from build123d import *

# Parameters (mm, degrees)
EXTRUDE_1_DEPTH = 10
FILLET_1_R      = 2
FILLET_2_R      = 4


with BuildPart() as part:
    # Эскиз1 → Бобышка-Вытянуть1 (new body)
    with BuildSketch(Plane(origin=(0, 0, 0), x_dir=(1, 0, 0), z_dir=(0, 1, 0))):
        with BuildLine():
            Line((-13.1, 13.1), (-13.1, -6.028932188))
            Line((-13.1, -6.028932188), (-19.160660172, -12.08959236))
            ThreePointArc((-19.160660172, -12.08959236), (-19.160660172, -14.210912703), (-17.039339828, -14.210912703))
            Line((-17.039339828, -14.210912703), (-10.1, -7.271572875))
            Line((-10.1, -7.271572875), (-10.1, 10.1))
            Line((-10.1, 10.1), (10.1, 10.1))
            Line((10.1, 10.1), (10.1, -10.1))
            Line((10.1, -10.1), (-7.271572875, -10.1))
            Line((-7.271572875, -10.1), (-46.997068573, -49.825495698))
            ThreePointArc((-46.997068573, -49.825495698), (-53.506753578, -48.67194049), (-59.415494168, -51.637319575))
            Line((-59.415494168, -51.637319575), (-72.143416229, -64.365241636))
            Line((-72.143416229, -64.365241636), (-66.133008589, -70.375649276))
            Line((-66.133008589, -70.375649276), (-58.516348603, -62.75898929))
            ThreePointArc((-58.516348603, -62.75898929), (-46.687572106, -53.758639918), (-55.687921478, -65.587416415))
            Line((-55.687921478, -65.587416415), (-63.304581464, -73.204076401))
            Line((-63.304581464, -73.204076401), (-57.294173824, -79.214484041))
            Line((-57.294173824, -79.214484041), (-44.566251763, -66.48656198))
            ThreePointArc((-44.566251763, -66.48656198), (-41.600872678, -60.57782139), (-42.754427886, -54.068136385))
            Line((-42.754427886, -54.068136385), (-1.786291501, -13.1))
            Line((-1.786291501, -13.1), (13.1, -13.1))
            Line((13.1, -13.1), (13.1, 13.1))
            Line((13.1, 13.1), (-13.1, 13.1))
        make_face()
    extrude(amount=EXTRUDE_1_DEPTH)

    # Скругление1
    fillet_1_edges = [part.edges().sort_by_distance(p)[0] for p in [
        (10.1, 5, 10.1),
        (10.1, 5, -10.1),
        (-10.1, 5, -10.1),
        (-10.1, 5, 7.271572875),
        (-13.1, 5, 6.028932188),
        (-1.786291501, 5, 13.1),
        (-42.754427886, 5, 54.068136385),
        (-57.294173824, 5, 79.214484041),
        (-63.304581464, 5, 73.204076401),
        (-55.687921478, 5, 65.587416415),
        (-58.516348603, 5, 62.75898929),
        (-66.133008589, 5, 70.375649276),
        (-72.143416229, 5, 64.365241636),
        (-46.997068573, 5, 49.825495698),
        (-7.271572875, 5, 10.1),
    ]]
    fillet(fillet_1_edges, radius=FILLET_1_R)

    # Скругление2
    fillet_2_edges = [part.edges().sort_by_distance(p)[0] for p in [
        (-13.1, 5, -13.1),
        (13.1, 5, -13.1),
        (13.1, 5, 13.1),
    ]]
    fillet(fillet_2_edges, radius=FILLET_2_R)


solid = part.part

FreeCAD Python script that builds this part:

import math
import FreeCAD as App
import Part
import Sketcher
Q = App.Units.Quantity


def edges_at(feature, points):
    """Names of the edges that pass closest to the given points."""
    edges = feature.Shape.Edges
    near = lambda p: min(range(len(edges)), key=lambda i: edges[i].distToShape(Part.Vertex(*p))[0])
    return sorted({f"Edge{near(p) + 1}" for p in points})

doc = App.newDocument("Part")
body = doc.addObject("PartDesign::Body", "Body")

# Sketch on XZ plane
sketch1 = doc.addObject("Sketcher::SketchObject", "Sketch")
body.addObject(sketch1)
sketch1.AttachmentSupport = (doc.XZ_Plane, [""])
sketch1.MapMode = "FlatFace"
sketch1.addGeometry([
    Part.LineSegment(App.Vector(-13.1, -13.1, 0), App.Vector(-13.1, 6, 0)),  # 0
    Part.LineSegment(App.Vector(-13.1, 6, 0), App.Vector(-19.2, 12.1, 0)),  # 1
    Part.ArcOfCircle(Part.Circle(App.Vector(-18.1, 13.2, 0), App.Vector(0, 0, 1), 1.5), math.radians(45), math.radians(225)),  # 2
    Part.LineSegment(App.Vector(-17, 14.2, 0), App.Vector(-10.1, 7.3, 0)),  # 3
    Part.LineSegment(App.Vector(-10.1, 7.3, 0), App.Vector(-10.1, -10.1, 0)),  # 4
    Part.LineSegment(App.Vector(-10.1, -10.1, 0), App.Vector(10.1, -10.1, 0)),  # 5
    Part.LineSegment(App.Vector(10.1, -10.1, 0), App.Vector(10.1, 10.1, 0)),  # 6
    Part.LineSegment(App.Vector(10.1, 10.1, 0), App.Vector(-7.3, 10.1, 0)),  # 7
    Part.LineSegment(App.Vector(-7.3, 10.1, 0), App.Vector(-47, 49.8, 0)),  # 8
    Part.ArcOfCircle(Part.Circle(App.Vector(-52, 59.1, 0), App.Vector(0, 0, 1), 10.5), math.radians(-135), math.radians(-62)),  # 9
    Part.LineSegment(App.Vector(-59.4, 51.6, 0), App.Vector(-72.1, 64.4, 0)),  # 10
    Part.LineSegment(App.Vector(-72.1, 64.4, 0), App.Vector(-66.1, 70.4, 0)),  # 11
    Part.LineSegment(App.Vector(-66.1, 70.4, 0), App.Vector(-58.5, 62.8, 0)),  # 12
    Part.ArcOfCircle(Part.Circle(App.Vector(-52, 59.1, 0), App.Vector(0, 0, 1), 7.5), math.radians(150), math.radians(480)),  # 13
    Part.LineSegment(App.Vector(-55.7, 65.6, 0), App.Vector(-63.3, 73.2, 0)),  # 14
    Part.LineSegment(App.Vector(-63.3, 73.2, 0), App.Vector(-57.3, 79.2, 0)),  # 15
    Part.LineSegment(App.Vector(-57.3, 79.2, 0), App.Vector(-44.6, 66.5, 0)),  # 16
    Part.ArcOfCircle(Part.Circle(App.Vector(-52, 59.1, 0), App.Vector(0, 0, 1), 10.5), math.radians(-28), math.radians(45)),  # 17
    Part.LineSegment(App.Vector(-42.8, 54.1, 0), App.Vector(-1.8, 13.1, 0)),  # 18
    Part.LineSegment(App.Vector(-1.8, 13.1, 0), App.Vector(13.1, 13.1, 0)),  # 19
    Part.LineSegment(App.Vector(13.1, 13.1, 0), App.Vector(13.1, -13.1, 0)),  # 20
    Part.LineSegment(App.Vector(13.1, -13.1, 0), App.Vector(-13.1, -13.1, 0)),  # 21
], False)
sketch1.addConstraint([
    Sketcher.Constraint("Coincident", 0, 2, 1, 1),
    Sketcher.Constraint("Tangent", 1, 2, 2, 2),
    Sketcher.Constraint("Tangent", 2, 1, 3, 1),
    Sketcher.Constraint("Coincident", 3, 2, 4, 1),
    Sketcher.Constraint("Coincident", 4, 2, 5, 1),
    Sketcher.Constraint("Coincident", 5, 2, 6, 1),
    Sketcher.Constraint("Coincident", 6, 2, 7, 1),
    Sketcher.Constraint("Coincident", 7, 2, 8, 1),
    Sketcher.Constraint("Coincident", 8, 2, 9, 2),
    Sketcher.Constraint("Tangent", 9, 1, 10, 1),
    Sketcher.Constraint("Coincident", 10, 2, 11, 1),
    Sketcher.Constraint("Coincident", 11, 2, 12, 1),
    Sketcher.Constraint("Coincident", 12, 2, 13, 1),
    Sketcher.Constraint("Coincident", 13, 2, 14, 1),
    Sketcher.Constraint("Coincident", 14, 2, 15, 1),
    Sketcher.Constraint("Coincident", 15, 2, 16, 1),
    Sketcher.Constraint("Tangent", 16, 2, 17, 2),
    Sketcher.Constraint("Coincident", 17, 1, 18, 1),
    Sketcher.Constraint("Coincident", 18, 2, 19, 1),
    Sketcher.Constraint("Coincident", 19, 2, 20, 1),
    Sketcher.Constraint("Coincident", 20, 2, 21, 1),
    Sketcher.Constraint("Coincident", 21, 2, 0, 1),
    Sketcher.Constraint("Vertical", 0),
    Sketcher.Constraint("Vertical", 4),
    Sketcher.Constraint("Horizontal", 5),
    Sketcher.Constraint("Vertical", 6),
    Sketcher.Constraint("Horizontal", 7),
    Sketcher.Constraint("Horizontal", 19),
    Sketcher.Constraint("Vertical", 20),
    Sketcher.Constraint("Horizontal", 21),
    Sketcher.Constraint("Coincident", 13, 3, 9, 3),
    Sketcher.Constraint("Coincident", 17, 3, 9, 3),
    Sketcher.Constraint("Equal", 9, 17),
    Sketcher.Constraint("Symmetric", 4, 2, 6, 2, -1, 1),
    Sketcher.Constraint("Symmetric", 19, 2, 21, 2, -1, 1),
    Sketcher.Constraint("Parallel", 1, 3),
    Sketcher.Constraint("Parallel", 3, 8),
    Sketcher.Constraint("Parallel", 8, 10),
    Sketcher.Constraint("Perpendicular", 10, 11),
    Sketcher.Constraint("Perpendicular", 11, 12),
    Sketcher.Constraint("Parallel", 12, 14),
    Sketcher.Constraint("Perpendicular", 14, 15),
    Sketcher.Constraint("Perpendicular", 15, 16),
    Sketcher.Constraint("Parallel", 16, 18),
    Sketcher.Constraint("Equal", 7, 4),
    Sketcher.Constraint("Equal", 5, 6),
    Sketcher.Constraint("Equal", 21, 20),
    Sketcher.Constraint("Equal", 12, 14),
    Sketcher.Constraint("Equal", 11, 15),
    Sketcher.Constraint("Radius", 2, Q("1.5 mm")),
    Sketcher.Constraint("Radius", 9, Q("10.5 mm")),
    Sketcher.Constraint("Radius", 13, Q("7.5 mm")),
    Sketcher.Constraint("Angle", 1, Q("135 deg")),
    Sketcher.Constraint("Distance", 10, Q("18 mm")),
    Sketcher.Constraint("DistanceX", 5, 1, 5, 2, Q("20.2 mm")),
    Sketcher.Constraint("DistanceX", 21, 2, 21, 1, Q("26.2 mm")),
    Sketcher.Constraint("DistanceX", 2, 3, 0, 2, Q("5 mm")),
    Sketcher.Constraint("Distance", 11, Q("8.5 mm")),
    Sketcher.Constraint("DistanceX", 19, 1, 19, 2, Q("14.886292 mm")),
    Sketcher.Constraint("DistanceX", 7, 2, 7, 1, Q("17.371573 mm")),
    Sketcher.Constraint("DistanceY", -1, 1, 9, 3, Q("59.061941 mm")),
    Sketcher.Constraint("DistanceX", 8, 2, -1, 1, Q("46.997069 mm")),
])
pad1 = doc.addObject("PartDesign::Pad", "Pad")
body.addObject(pad1)
pad1.Profile = sketch1
pad1.Length = 10
pad1.Reversed = True
doc.recompute()

fillet = doc.addObject("PartDesign::Fillet", "Fillet")
body.addObject(fillet)
fillet.Base = (pad1, edges_at(pad1, [
    (10.1, 5, 10.1),
    (10.1, 5, -10.1),
    (-10.1, 5, -10.1),
    (-10.1, 5, 7.272),
    (-13.1, 5, 6.029),
    (-1.786, 5, 13.1),
    (-42.754, 5, 54.068),
    (-57.294, 5, 79.214),
    (-63.305, 5, 73.204),
    (-55.688, 5, 65.587),
    (-58.516, 5, 62.759),
    (-66.133, 5, 70.376),
    (-72.143, 5, 64.365),
    (-46.997, 5, 49.825),
    (-7.272, 5, 10.1),
]))
fillet.Radius = 2
doc.recompute()

fillet2 = doc.addObject("PartDesign::Fillet", "Fillet001")
body.addObject(fillet2)
fillet2.Base = (fillet, edges_at(fillet, [(-13.1, 5, -13.1), (13.1, 5, -13.1), (13.1, 5, 13.1)]))
fillet2.Radius = 4

doc.recompute()
